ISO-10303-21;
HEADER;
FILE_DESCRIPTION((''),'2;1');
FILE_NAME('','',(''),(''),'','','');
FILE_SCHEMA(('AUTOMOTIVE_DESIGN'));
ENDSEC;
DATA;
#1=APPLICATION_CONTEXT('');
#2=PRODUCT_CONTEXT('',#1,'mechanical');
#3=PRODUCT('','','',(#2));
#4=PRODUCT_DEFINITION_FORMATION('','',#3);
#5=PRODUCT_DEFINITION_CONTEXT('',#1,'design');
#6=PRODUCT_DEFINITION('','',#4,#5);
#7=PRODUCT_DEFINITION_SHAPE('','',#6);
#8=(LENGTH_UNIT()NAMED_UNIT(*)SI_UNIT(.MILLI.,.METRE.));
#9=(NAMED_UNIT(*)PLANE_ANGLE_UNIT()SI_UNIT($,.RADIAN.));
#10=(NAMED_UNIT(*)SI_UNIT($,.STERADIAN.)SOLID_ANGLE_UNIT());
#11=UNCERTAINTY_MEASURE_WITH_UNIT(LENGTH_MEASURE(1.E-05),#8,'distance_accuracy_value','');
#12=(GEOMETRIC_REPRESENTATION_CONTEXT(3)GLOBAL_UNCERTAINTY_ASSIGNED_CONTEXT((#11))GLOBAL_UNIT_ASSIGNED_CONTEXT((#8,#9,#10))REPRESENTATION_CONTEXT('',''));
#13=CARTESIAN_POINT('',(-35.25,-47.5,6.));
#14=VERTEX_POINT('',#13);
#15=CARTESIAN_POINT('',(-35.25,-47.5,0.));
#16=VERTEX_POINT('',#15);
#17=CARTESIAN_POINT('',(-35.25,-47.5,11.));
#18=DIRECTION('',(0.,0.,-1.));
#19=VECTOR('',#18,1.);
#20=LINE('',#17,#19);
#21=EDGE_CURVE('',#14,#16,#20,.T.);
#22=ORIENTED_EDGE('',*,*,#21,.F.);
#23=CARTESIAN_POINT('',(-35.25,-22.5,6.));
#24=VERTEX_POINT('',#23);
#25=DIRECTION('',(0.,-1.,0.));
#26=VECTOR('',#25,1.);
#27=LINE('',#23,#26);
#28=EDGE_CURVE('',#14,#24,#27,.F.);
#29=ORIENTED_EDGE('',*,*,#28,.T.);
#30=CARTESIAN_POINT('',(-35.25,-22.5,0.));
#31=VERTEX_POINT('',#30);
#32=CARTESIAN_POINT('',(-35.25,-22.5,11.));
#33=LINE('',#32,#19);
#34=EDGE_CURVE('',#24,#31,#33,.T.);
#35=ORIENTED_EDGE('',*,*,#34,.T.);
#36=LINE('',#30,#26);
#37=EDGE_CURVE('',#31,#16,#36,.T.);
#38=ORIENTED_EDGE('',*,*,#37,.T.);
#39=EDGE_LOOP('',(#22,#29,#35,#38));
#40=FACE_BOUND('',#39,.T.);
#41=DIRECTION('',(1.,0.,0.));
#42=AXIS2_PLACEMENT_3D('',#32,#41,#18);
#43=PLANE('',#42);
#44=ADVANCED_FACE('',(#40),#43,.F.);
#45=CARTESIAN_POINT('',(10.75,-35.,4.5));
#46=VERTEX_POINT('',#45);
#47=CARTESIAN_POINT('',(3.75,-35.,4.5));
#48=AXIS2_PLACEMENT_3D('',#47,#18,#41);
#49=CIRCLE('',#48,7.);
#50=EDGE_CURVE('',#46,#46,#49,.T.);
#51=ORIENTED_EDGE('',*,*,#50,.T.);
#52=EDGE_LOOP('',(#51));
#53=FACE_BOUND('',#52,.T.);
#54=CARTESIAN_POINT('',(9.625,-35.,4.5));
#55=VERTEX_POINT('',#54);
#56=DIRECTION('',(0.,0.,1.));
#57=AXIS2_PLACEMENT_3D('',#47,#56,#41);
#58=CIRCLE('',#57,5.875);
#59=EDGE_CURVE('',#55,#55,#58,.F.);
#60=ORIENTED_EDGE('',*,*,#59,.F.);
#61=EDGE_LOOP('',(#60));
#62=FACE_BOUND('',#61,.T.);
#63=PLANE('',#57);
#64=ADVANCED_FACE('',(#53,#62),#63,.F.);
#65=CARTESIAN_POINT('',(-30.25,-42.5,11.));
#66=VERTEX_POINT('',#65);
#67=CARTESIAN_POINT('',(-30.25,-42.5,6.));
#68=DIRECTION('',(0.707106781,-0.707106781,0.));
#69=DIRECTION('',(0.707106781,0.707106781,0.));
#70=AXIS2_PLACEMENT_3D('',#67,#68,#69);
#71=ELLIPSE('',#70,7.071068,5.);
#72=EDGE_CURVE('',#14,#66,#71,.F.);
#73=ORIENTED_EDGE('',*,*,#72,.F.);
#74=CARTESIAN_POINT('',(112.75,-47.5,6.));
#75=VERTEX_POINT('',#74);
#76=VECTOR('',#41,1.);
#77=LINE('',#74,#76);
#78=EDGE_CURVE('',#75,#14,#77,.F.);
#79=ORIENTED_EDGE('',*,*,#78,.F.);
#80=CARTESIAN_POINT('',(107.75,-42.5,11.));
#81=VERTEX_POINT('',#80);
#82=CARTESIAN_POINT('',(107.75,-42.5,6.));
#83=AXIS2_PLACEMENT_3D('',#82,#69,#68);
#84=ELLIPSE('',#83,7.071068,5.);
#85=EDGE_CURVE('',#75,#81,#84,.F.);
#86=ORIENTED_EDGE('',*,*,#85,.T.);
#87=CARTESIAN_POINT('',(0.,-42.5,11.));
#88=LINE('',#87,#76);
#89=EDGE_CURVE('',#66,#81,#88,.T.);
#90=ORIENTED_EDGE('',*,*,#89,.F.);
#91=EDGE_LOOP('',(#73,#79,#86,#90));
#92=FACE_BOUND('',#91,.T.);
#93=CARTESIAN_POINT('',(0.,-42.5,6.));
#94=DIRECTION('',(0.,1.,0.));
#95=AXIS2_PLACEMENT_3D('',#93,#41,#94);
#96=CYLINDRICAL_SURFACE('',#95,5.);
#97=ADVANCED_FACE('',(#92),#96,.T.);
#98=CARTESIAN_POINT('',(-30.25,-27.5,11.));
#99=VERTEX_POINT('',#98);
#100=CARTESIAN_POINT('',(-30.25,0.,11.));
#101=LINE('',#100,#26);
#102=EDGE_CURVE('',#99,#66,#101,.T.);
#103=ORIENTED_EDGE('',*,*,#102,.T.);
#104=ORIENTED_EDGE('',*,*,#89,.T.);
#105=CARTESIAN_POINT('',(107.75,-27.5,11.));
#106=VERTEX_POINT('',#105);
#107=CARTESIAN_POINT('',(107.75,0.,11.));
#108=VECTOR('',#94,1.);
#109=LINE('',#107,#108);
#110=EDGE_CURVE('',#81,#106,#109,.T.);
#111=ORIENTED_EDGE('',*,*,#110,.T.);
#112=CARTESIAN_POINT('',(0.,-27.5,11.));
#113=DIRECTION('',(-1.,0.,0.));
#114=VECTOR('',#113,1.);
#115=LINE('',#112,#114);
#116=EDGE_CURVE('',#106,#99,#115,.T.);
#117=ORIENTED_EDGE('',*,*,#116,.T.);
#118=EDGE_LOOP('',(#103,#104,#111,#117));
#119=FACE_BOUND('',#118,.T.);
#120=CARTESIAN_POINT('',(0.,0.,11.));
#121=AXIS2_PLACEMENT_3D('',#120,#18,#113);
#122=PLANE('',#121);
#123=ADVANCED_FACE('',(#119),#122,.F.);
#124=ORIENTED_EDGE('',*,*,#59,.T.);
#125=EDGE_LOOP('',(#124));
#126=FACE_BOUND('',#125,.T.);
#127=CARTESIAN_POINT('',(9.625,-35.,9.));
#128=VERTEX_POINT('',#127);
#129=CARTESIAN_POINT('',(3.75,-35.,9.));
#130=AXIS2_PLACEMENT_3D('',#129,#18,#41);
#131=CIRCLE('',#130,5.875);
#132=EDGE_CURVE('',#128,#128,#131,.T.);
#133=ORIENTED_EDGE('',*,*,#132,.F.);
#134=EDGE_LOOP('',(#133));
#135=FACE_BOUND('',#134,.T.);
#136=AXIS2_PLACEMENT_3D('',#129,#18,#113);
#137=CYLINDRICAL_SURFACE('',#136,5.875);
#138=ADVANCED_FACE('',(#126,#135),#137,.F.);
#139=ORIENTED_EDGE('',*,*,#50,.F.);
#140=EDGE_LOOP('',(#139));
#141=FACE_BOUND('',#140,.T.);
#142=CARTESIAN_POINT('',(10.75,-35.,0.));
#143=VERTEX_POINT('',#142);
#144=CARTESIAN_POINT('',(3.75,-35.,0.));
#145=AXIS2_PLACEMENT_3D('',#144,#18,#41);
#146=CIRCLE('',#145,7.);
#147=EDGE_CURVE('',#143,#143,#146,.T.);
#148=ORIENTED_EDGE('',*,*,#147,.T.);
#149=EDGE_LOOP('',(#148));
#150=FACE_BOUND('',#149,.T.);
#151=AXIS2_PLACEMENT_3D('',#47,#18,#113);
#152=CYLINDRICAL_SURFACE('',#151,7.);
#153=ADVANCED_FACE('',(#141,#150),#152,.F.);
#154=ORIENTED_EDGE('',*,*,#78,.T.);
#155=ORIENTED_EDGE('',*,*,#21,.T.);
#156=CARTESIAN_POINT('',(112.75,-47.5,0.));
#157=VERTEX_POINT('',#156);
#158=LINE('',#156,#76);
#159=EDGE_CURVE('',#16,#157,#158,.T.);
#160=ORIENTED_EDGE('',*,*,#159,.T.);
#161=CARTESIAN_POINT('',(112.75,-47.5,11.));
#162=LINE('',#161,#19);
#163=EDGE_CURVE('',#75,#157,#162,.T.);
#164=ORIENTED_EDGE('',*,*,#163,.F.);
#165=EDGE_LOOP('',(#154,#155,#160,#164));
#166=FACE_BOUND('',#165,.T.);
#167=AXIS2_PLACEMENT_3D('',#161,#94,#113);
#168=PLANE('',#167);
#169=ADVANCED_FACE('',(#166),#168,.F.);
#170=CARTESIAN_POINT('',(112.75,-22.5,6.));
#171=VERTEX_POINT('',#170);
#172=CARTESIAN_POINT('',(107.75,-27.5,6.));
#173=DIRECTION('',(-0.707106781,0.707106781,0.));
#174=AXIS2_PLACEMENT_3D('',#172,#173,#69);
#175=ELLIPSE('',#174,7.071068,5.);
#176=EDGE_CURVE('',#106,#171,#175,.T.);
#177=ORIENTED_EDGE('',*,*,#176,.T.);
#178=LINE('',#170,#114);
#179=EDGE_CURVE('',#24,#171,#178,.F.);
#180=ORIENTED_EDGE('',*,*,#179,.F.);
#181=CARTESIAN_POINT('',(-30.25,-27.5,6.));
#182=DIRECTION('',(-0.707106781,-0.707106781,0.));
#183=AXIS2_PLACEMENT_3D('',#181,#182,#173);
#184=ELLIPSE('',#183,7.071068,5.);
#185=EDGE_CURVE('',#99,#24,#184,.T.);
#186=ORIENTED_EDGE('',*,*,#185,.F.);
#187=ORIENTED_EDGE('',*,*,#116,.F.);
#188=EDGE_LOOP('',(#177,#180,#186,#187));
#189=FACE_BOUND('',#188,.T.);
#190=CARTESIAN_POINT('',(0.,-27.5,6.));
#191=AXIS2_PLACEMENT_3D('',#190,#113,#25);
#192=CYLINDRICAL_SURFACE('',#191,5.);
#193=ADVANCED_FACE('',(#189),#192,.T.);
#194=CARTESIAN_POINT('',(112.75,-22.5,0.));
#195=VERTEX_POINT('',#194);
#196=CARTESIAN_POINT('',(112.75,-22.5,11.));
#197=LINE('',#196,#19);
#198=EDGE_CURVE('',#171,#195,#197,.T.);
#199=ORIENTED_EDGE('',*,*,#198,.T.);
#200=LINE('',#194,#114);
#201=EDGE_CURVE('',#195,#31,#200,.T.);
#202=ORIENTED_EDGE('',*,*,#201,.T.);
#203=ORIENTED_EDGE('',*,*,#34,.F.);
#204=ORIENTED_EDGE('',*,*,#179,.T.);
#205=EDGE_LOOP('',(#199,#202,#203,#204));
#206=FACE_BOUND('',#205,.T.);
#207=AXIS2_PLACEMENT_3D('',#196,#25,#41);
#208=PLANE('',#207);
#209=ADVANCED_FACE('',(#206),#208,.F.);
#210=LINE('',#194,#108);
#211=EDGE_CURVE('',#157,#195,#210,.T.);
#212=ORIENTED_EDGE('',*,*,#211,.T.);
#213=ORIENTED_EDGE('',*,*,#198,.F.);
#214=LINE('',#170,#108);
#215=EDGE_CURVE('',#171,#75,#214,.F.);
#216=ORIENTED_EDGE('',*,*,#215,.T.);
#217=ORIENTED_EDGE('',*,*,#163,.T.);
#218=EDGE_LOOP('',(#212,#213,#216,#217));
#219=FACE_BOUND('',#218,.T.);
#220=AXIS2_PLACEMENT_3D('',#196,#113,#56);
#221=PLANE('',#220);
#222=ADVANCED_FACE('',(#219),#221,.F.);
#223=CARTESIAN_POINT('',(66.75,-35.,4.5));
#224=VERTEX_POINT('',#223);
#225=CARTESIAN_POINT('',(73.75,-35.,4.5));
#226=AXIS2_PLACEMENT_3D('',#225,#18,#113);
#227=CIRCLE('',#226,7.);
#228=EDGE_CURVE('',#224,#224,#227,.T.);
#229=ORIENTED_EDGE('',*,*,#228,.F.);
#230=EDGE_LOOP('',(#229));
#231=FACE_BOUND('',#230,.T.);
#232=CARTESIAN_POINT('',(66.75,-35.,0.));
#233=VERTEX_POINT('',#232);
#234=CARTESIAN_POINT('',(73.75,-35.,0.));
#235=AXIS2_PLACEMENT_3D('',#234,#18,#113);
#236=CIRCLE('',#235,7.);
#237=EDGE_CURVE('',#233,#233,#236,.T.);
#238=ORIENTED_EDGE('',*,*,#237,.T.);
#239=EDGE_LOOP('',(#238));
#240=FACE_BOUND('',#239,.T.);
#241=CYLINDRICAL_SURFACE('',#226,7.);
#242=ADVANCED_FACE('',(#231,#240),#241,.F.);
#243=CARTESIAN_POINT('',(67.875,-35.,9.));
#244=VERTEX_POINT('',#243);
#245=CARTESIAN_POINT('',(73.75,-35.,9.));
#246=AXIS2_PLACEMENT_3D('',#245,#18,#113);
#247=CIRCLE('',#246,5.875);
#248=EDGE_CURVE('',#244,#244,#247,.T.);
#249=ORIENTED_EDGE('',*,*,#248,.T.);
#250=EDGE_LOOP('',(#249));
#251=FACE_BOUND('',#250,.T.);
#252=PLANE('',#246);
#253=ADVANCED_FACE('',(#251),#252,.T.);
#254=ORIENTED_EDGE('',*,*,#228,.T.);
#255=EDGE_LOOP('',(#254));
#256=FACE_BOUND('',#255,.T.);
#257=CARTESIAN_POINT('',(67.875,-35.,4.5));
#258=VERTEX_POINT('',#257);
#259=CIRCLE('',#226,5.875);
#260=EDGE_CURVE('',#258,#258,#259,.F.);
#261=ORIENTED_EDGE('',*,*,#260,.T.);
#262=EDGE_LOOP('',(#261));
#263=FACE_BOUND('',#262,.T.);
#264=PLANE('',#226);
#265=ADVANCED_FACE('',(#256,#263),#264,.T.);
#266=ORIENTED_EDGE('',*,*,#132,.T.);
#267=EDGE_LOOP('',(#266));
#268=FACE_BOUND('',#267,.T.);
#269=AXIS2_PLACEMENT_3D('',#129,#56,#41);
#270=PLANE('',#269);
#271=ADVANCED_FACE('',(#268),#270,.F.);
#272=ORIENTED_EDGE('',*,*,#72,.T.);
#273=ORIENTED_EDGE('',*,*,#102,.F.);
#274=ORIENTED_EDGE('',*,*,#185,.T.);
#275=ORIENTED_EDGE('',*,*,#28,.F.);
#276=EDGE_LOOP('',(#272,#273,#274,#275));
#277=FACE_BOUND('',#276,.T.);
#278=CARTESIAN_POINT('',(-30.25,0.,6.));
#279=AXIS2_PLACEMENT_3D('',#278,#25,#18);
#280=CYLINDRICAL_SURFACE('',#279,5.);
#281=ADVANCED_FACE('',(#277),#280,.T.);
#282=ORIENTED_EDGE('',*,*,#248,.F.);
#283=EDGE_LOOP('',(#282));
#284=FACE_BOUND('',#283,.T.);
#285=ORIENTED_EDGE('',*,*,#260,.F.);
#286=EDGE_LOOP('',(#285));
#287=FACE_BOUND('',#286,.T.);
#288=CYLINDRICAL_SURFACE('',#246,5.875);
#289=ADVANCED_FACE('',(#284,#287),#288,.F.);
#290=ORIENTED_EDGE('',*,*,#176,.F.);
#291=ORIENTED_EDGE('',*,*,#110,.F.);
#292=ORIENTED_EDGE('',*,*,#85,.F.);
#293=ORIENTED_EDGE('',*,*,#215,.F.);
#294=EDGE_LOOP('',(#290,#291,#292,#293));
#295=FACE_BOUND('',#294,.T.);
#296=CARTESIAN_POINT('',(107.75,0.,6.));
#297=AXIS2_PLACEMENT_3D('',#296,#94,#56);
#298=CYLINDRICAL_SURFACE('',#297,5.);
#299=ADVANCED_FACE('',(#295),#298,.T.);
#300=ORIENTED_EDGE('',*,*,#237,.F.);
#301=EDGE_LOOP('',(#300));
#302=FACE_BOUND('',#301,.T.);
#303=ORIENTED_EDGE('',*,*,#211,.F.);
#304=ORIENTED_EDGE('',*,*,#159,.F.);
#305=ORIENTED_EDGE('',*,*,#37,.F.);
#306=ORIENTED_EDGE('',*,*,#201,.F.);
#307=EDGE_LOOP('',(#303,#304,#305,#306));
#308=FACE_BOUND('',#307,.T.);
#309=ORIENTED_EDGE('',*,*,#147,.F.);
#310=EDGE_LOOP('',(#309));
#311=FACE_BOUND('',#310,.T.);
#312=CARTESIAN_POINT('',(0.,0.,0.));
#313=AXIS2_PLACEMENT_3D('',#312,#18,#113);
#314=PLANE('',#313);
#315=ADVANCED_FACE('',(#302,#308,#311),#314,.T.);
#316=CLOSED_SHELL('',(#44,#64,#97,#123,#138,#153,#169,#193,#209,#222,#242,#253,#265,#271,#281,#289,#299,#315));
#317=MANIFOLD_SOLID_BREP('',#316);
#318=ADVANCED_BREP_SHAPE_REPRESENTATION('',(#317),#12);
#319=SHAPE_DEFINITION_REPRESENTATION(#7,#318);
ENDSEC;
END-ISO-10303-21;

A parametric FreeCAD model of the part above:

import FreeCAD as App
import Part
import Sketcher
from FreeCAD import Vector


def edges_at(feature, points):
    """Names of the edges that pass closest to the given points."""
    edges = feature.Shape.Edges
    near = lambda p: min(range(len(edges)), key=lambda i: edges[i].distToShape(Part.Vertex(*p))[0])
    return sorted({f"Edge{near(p) + 1}" for p in points})

doc = App.newDocument("Part")
body = doc.addObject("PartDesign::Body", "Body")

# Sketch on XY plane
sketch1 = body.newObject("Sketcher::SketchObject", "Sketch")
sketch1.AttachmentSupport = (doc.getObject("XY_Plane"), [""])
sketch1.MapMode = "FlatFace"
sketch1.addGeometry(Part.LineSegment(Vector(-35, -22, 0), Vector(-35, -48, 0)), False)
sketch1.addGeometry(Part.LineSegment(Vector(-35, -48, 0), Vector(113, -48, 0)), False)
sketch1.addGeometry(Part.LineSegment(Vector(113, -48, 0), Vector(113, -22, 0)), False)
sketch1.addGeometry(Part.LineSegment(Vector(113, -22, 0), Vector(-35, -22, 0)), False)
sketch1.addConstraint(Sketcher.Constraint("Coincident", 0, 2, 1, 1))
sketch1.addConstraint(Sketcher.Constraint("Coincident", 1, 2, 2, 1))
sketch1.addConstraint(Sketcher.Constraint("Coincident", 2, 2, 3, 1))
sketch1.addConstraint(Sketcher.Constraint("Coincident", 3, 2, 0, 1))
sketch1.addConstraint(Sketcher.Constraint("Vertical", 0))
sketch1.addConstraint(Sketcher.Constraint("Horizontal", 1))
sketch1.addConstraint(Sketcher.Constraint("Vertical", 2))
sketch1.addConstraint(Sketcher.Constraint("Horizontal", 3))
sketch1.addConstraint(Sketcher.Constraint("DistanceX", 1, 1, 1, 2, 148.0))
sketch1.addConstraint(Sketcher.Constraint("DistanceY", 0, 2, 0, 1, 25.0))
sketch1.addConstraint(Sketcher.Constraint("DistanceY", 0, 2, -1, 1, 47.5))
sketch1.addConstraint(Sketcher.Constraint("DistanceX", 0, 2, -1, 1, 35.25))
pad1 = body.newObject("PartDesign::Pad", "Pad")
pad1.Profile = sketch1
pad1.Length = 11
doc.recompute()

fillet = body.newObject("PartDesign::Fillet", "Fillet")
fillet.Base = (pad1, edges_at(pad1, [
    (112.75, -35, 11),
    (38.75, -22.5, 11),
    (-35.25, -35, 11),
    (38.75, -47.5, 11),
]))
fillet.Radius = 5

# Sketch on XY plane
sketch2 = body.newObject("Sketcher::SketchObject", "Sketch001")
sketch2.AttachmentSupport = (doc.getObject("XY_Plane"), [""])
sketch2.MapMode = "FlatFace"
sketch2.addGeometry(Part.Circle(Vector(74, -35, 0), Vector(0, 0, 1), 6), False)
sketch2.addGeometry(Part.Circle(Vector(4, -35, 0), Vector(0, 0, 1), 6), False)
sketch2.addConstraint(Sketcher.Constraint("Equal", 0, 1))
sketch2.addConstraint(Sketcher.Constraint("Horizontal", 0, 3, 1, 3))
sketch2.addConstraint(Sketcher.Constraint("Diameter", 0, 11.75))
sketch2.addConstraint(Sketcher.Constraint("DistanceY", 0, 3, -1, 1, 35.0))
sketch2.addConstraint(Sketcher.Constraint("DistanceX", 1, 3, 0, 3, 70.0))
sketch2.addConstraint(Sketcher.Constraint("DistanceX", -1, 1, 0, 3, 73.75))
pocket1 = body.newObject("PartDesign::Pocket", "Pocket")
pocket1.Profile = sketch2
pocket1.Length = 9
pocket1.Reversed = True

# Sketch on XY plane
sketch3 = body.newObject("Sketcher::SketchObject", "Sketch002")
sketch3.AttachmentSupport = (doc.getObject("XY_Plane"), [""])
sketch3.MapMode = "FlatFace"
sketch3.addGeometry(Part.Circle(Vector(74, -35, 0), Vector(0, 0, 1), 7), False)
sketch3.addGeometry(Part.Circle(Vector(4, -35, 0), Vector(0, 0, 1), 7), False)
sketch3.addConstraint(Sketcher.Constraint("Equal", 0, 1))
sketch3.addConstraint(Sketcher.Constraint("Horizontal", 0, 3, 1, 3))
sketch3.addConstraint(Sketcher.Constraint("Diameter", 0, 14.0))
sketch3.addConstraint(Sketcher.Constraint("DistanceY", 0, 3, -1, 1, 35.0))
sketch3.addConstraint(Sketcher.Constraint("DistanceX", 1, 3, 0, 3, 70.0))
sketch3.addConstraint(Sketcher.Constraint("DistanceX", -1, 1, 0, 3, 73.75))
pocket2 = body.newObject("PartDesign::Pocket", "Pocket001")
pocket2.Profile = sketch3
pocket2.Length = 4.5
pocket2.Reversed = True

doc.recompute()
